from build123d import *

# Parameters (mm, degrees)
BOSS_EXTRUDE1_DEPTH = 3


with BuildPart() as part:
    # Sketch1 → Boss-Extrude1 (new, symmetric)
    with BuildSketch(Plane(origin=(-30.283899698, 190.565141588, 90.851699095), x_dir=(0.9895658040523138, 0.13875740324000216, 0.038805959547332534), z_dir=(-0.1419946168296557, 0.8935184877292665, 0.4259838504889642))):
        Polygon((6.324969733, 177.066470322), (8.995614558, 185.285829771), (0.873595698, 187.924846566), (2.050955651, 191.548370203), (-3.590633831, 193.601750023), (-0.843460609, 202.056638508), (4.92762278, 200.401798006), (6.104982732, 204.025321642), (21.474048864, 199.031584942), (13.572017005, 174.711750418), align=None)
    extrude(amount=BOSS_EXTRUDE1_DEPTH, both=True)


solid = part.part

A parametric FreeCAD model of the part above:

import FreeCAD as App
import Part
import Sketcher

V = App.Vector
Q = App.Units.Quantity

doc = App.newDocument("Part")
params = doc.addObject("Spreadsheet::Sheet", "Params")
for row, (alias, value) in enumerate([
    ("sketch1_length", "0.3 in"),
    ("sketch1_length2", "0.15 in"),
    ("sketch1_length3", "0.35 in"),
    ("pad1_length", "6 mm"),
], start=1):
    params.set(f"A{row}", alias)
    params.set(f"B{row}", "=" + value)
    params.setAlias(f"B{row}", alias)

body = doc.addObject("PartDesign::Body", "Body")

# Sketch on an angled plane
sketch1 = body.newObject("Sketcher::SketchObject", "Sketch")
sketch1.Placement = App.Placement(V(-30.2839, 190.565142, 90.851699), App.Rotation(V(0.989565804, 0.138757403, 0.03880596), V(-0.02443457, 0.427049288, -0.903898145), V(-0.141994617, 0.893518488, 0.42598385), "ZXY"))
sketch1.addGeometry(Part.LineSegment(V(9, 185.3, 0), V(6.3, 177.1, 0)), False)
sketch1.addGeometry(Part.LineSegment(V(6.3, 177.1, 0), V(13.6, 174.7, 0)), False)
sketch1.addGeometry(Part.LineSegment(V(13.6, 174.7, 0), V(21.5, 199, 0)), False)
sketch1.addGeometry(Part.LineSegment(V(21.5, 199, 0), V(6.1, 204, 0)), False)
sketch1.addGeometry(Part.LineSegment(V(6.1, 204, 0), V(4.9, 200.4, 0)), False)
sketch1.addGeometry(Part.LineSegment(V(4.9, 200.4, 0), V(-0.8, 202.1, 0)), False)
sketch1.addGeometry(Part.LineSegment(V(-0.8, 202.1, 0), V(-3.6, 193.6, 0)), False)
sketch1.addGeometry(Part.LineSegment(V(-3.6, 193.6, 0), V(2.1, 191.5, 0)), False)
sketch1.addGeometry(Part.LineSegment(V(2.1, 191.5, 0), V(0.9, 187.9, 0)), False)
sketch1.addGeometry(Part.LineSegment(V(0.9, 187.9, 0), V(9, 185.3, 0)), False)
sketch1.addConstraint(Sketcher.Constraint("Coincident", 0, 2, 1, 1))
sketch1.addConstraint(Sketcher.Constraint("Coincident", 1, 2, 2, 1))
sketch1.addConstraint(Sketcher.Constraint("Coincident", 2, 2, 3, 1))
sketch1.addConstraint(Sketcher.Constraint("Coincident", 3, 2, 4, 1))
sketch1.addConstraint(Sketcher.Constraint("Coincident", 4, 2, 5, 1))
sketch1.addConstraint(Sketcher.Constraint("Coincident", 5, 2, 6, 1))
sketch1.addConstraint(Sketcher.Constraint("Coincident", 6, 2, 7, 1))
sketch1.addConstraint(Sketcher.Constraint("Coincident", 7, 2, 8, 1))
sketch1.addConstraint(Sketcher.Constraint("Coincident", 8, 2, 9, 1))
sketch1.addConstraint(Sketcher.Constraint("Coincident", 9, 2, 0, 1))
sketch1.addConstraint(Sketcher.Constraint("Perpendicular", 0, 1))
sketch1.addConstraint(Sketcher.Constraint("Perpendicular", 1, 2))
sketch1.addConstraint(Sketcher.Constraint("Perpendicular", 2, 3))
sketch1.addConstraint(Sketcher.Constraint("Perpendicular", 3, 4))
sketch1.addConstraint(Sketcher.Constraint("Parallel", 4, 6))
sketch1.addConstraint(Sketcher.Constraint("Parallel", 6, 8))
sketch1.addConstraint(Sketcher.Constraint("Perpendicular", 8, 9))
sketch1.addConstraint(Sketcher.Constraint("Equal", 5, 7))
sketch1.addConstraint(Sketcher.Constraint("Equal", 4, 8))
sketch1.addConstraint(Sketcher.Constraint("Distance", 1, Q("0.3 in")))
sketch1.addConstraint(Sketcher.Constraint("Distance", 4, Q("0.15 in")))
sketch1.addConstraint(Sketcher.Constraint("Distance", 6, Q("0.35 in")))
sketch1.addConstraint(Sketcher.Constraint("DistanceY", 8, 2, 6, 2, Q("0.2235001 in")))
sketch1.addConstraint(Sketcher.Constraint("Distance", 2, Q("25.571399 mm")))
sketch1.addConstraint(Sketcher.Constraint("Distance", 3, Q("16.16 mm")))
sketch1.addConstraint(Sketcher.Constraint("Distance", 9, Q("8.54 mm")))
sketch1.addConstraint(Sketcher.Constraint("DistanceY", -1, 1, 4, 2, Q("200.401798 mm")))
sketch1.addConstraint(Sketcher.Constraint("DistanceY", 1, 2, 6, 2, Q("18.89 mm")))
sketch1.addConstraint(Sketcher.Constraint("DistanceY", 0, 2, 7, 2, Q("14.4819 mm")))
sketch1.addConstraint(Sketcher.Constraint("DistanceX", -1, 1, 0, 2, Q("6.32497 mm")))
sketch1.setExpression("Constraints[19]", "Params.sketch1_length")
sketch1.setExpression("Constraints[20]", "Params.sketch1_length2")
sketch1.setExpression("Constraints[21]", "Params.sketch1_length3")
pad1 = body.newObject("PartDesign::Pad", "Pad")
pad1.Profile = sketch1
pad1.setExpression("Length", "Params.pad1_length")
pad1.Midplane = True

doc.recompute()
